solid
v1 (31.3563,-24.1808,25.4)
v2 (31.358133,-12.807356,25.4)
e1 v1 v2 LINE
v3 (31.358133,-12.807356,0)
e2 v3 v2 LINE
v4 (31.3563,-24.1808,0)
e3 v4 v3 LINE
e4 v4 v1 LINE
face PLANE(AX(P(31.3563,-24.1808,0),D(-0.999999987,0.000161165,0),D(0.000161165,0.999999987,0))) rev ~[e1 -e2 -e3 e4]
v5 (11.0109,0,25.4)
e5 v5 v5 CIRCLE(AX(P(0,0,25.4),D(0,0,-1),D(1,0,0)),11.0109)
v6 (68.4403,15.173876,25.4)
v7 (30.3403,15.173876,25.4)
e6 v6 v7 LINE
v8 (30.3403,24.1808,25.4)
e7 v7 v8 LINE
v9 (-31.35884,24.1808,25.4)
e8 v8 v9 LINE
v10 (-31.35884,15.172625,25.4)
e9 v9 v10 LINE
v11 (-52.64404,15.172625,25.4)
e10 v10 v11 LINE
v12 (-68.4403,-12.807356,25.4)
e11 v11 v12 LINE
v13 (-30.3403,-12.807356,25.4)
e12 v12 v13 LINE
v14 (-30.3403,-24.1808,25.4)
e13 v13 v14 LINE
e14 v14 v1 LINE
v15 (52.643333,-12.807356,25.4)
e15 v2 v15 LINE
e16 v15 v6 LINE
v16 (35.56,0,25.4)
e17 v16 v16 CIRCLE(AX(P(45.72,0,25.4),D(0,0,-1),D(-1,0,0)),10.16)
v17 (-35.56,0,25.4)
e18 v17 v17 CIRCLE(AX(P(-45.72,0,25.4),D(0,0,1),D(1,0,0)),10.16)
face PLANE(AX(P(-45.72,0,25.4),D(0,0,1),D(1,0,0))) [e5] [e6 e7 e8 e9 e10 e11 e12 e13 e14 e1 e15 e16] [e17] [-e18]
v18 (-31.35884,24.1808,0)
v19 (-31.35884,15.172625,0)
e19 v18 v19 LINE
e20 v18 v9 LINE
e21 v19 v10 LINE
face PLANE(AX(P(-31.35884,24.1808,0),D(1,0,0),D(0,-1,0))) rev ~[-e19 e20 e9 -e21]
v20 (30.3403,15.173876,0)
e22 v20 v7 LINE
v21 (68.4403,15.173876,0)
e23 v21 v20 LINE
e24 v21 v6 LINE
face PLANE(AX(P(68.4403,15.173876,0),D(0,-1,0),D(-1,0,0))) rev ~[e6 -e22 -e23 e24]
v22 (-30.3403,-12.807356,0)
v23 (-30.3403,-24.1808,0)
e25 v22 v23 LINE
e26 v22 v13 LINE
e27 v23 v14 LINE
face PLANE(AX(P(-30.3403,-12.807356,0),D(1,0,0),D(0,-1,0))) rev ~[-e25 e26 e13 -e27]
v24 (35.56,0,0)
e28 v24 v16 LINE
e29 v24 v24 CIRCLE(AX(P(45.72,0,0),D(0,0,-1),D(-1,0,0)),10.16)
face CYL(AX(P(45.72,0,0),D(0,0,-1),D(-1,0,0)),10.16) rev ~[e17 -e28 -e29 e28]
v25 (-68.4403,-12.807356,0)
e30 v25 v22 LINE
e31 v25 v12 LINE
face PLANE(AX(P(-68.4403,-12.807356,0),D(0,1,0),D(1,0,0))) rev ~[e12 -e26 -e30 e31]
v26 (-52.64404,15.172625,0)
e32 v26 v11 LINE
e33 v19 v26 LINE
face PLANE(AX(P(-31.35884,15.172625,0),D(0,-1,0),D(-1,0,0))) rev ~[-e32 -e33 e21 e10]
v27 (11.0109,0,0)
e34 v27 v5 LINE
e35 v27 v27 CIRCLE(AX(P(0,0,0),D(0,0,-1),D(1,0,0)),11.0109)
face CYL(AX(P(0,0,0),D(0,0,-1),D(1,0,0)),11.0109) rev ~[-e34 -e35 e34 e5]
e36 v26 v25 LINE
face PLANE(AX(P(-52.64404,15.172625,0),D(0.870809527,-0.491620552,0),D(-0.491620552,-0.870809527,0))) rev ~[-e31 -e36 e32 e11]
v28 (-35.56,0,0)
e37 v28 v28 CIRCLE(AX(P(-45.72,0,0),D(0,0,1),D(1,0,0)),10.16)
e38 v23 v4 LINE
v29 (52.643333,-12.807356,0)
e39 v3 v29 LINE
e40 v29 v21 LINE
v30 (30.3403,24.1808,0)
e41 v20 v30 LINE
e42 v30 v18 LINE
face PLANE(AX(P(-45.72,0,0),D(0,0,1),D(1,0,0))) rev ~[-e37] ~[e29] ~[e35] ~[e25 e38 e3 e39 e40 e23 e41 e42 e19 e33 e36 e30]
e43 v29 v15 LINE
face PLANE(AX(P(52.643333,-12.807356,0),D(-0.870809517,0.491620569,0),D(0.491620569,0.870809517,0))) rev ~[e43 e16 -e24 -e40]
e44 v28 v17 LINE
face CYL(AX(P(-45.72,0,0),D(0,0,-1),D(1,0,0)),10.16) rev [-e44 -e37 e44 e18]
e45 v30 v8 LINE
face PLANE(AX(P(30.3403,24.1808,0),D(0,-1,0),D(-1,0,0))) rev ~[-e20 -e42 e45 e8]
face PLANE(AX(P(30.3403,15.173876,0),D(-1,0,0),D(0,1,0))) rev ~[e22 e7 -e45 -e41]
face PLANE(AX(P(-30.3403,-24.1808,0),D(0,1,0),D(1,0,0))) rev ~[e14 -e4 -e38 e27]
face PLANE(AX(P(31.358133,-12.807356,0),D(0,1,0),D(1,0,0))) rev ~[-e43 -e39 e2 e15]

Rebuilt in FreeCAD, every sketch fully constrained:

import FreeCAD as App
import Part
import Sketcher
Q = App.Units.Quantity

doc = App.newDocument("Part")
body = doc.addObject("PartDesign::Body", "Body")

sketch1 = doc.addObject("Sketcher::SketchObject", "Sketch")
body.addObject(sketch1)
sketch1.AttachmentSupport = (doc.XY_Plane, [""])
sketch1.MapMode = "FlatFace"
sketch1.addGeometry([
    Part.LineSegment(App.Vector(-31.35884, 15.172625, 0), App.Vector(-52.64404, 15.172625, 0)),
    Part.LineSegment(App.Vector(-52.64404, 15.172625, 0), App.Vector(-68.4403, -12.807356, 0)),
    Part.LineSegment(App.Vector(-68.4403, -12.807356, 0), App.Vector(-30.3403, -12.807356, 0)),
    Part.LineSegment(App.Vector(-30.3403, -12.807356, 0), App.Vector(-30.3403, -24.1808, 0)),
    Part.LineSegment(App.Vector(-30.3403, -24.1808, 0), App.Vector(31.3563, -24.1808, 0)),
    Part.LineSegment(App.Vector(31.3563, -24.1808, 0), App.Vector(31.358133, -12.807356, 0)),
    Part.LineSegment(App.Vector(31.358133, -12.807356, 0), App.Vector(52.643333, -12.807356, 0)),
    Part.LineSegment(App.Vector(52.643333, -12.807356, 0), App.Vector(68.4403, 15.173876, 0)),
    Part.LineSegment(App.Vector(68.4403, 15.173876, 0), App.Vector(30.3403, 15.173876, 0)),
    Part.LineSegment(App.Vector(30.3403, 15.173876, 0), App.Vector(30.3403, 24.1808, 0)),
    Part.LineSegment(App.Vector(30.3403, 24.1808, 0), App.Vector(-31.35884, 24.1808, 0)),
    Part.LineSegment(App.Vector(-31.35884, 24.1808, 0), App.Vector(-31.35884, 15.172625, 0)),
    Part.Circle(App.Vector(-45.72, 0, 0), App.Vector(0, 0, 1), 10.16),
    Part.Circle(App.Vector(0, 0, 0), App.Vector(0, 0, 1), 11.0109),
    Part.Circle(App.Vector(45.72, 0, 0), App.Vector(0, 0, 1), 10.16),
], False)
sketch1.addConstraint([
    Sketcher.Constraint("Coincident", 0, 2, 1, 1),
    Sketcher.Constraint("Coincident", 1, 2, 2, 1),
    Sketcher.Constraint("Coincident", 2, 2, 3, 1),
    Sketcher.Constraint("Coincident", 3, 2, 4, 1),
    Sketcher.Constraint("Coincident", 4, 2, 5, 1),
    Sketcher.Constraint("Coincident", 5, 2, 6, 1),
    Sketcher.Constraint("Coincident", 6, 2, 7, 1),
    Sketcher.Constraint("Coincident", 7, 2, 8, 1),
    Sketcher.Constraint("Coincident", 8, 2, 9, 1),
    Sketcher.Constraint("Coincident", 9, 2, 10, 1),
    Sketcher.Constraint("Coincident", 10, 2, 11, 1),
    Sketcher.Constraint("Coincident", 11, 2, 0, 1),
    Sketcher.Constraint("Horizontal", 0),
    Sketcher.Constraint("Horizontal", 2),
    Sketcher.Constraint("Vertical", 3),
    Sketcher.Constraint("Horizontal", 4),
    Sketcher.Constraint("Horizontal", 6),
    Sketcher.Constraint("Horizontal", 8),
    Sketcher.Constraint("Vertical", 9),
    Sketcher.Constraint("Horizontal", 10),
    Sketcher.Constraint("Vertical", 11),
    Sketcher.Constraint("Coincident", 13, 3, -1, 1),
    Sketcher.Constraint("Equal", 12, 14),
    Sketcher.Constraint("Symmetric", 12, 3, 14, 3, -1, 1),
    Sketcher.Constraint("Symmetric", 3, 2, 9, 2, -1, 1),
    Sketcher.Constraint("PointOnObject", 12, 3, -1),
    Sketcher.Constraint("Parallel", 1, 7),
    Sketcher.Constraint("Horizontal", 2, 2, 5, 2),
    Sketcher.Constraint("Equal", 0, 6),
    Sketcher.Constraint("Equal", 2, 8),
    Sketcher.Constraint("Diameter", 12, Q("0.8 in")),
    Sketcher.Constraint("Diameter", 13, Q("0.867 in")),
    Sketcher.Constraint("DistanceX", 2, 1, 2, 2, Q("1.5 in")),
    Sketcher.Constraint("DistanceX", 12, 3, -1, 1, Q("1.8 in")),
    Sketcher.Constraint("DistanceX", 0, 2, 0, 1, Q("0.838 in")),
    Sketcher.Constraint("DistanceX", 4, 1, 4, 2, Q("2.429 in")),
    Sketcher.Constraint("DistanceX", 4, 2, 7, 2, Q("1.46 in")),
    Sketcher.Constraint("Distance", 1, Q("1.265 in")),
    Sketcher.Constraint("DistanceX", 10, 2, 10, 1, Q("2.4291 in")),
    Sketcher.Constraint("DistanceY", 3, 2, -1, 1, Q("0.952 in")),
    Sketcher.Constraint("DistanceY", 3, 2, 3, 1, Q("11.373444 mm")),
    Sketcher.Constraint("DistanceY", 9, 1, 9, 2, Q("9.006924 mm")),
])
pad1 = doc.addObject("PartDesign::Pad", "Pad")
body.addObject(pad1)
pad1.Profile = sketch1
pad1.Length = Q("1 in")

doc.recompute()
